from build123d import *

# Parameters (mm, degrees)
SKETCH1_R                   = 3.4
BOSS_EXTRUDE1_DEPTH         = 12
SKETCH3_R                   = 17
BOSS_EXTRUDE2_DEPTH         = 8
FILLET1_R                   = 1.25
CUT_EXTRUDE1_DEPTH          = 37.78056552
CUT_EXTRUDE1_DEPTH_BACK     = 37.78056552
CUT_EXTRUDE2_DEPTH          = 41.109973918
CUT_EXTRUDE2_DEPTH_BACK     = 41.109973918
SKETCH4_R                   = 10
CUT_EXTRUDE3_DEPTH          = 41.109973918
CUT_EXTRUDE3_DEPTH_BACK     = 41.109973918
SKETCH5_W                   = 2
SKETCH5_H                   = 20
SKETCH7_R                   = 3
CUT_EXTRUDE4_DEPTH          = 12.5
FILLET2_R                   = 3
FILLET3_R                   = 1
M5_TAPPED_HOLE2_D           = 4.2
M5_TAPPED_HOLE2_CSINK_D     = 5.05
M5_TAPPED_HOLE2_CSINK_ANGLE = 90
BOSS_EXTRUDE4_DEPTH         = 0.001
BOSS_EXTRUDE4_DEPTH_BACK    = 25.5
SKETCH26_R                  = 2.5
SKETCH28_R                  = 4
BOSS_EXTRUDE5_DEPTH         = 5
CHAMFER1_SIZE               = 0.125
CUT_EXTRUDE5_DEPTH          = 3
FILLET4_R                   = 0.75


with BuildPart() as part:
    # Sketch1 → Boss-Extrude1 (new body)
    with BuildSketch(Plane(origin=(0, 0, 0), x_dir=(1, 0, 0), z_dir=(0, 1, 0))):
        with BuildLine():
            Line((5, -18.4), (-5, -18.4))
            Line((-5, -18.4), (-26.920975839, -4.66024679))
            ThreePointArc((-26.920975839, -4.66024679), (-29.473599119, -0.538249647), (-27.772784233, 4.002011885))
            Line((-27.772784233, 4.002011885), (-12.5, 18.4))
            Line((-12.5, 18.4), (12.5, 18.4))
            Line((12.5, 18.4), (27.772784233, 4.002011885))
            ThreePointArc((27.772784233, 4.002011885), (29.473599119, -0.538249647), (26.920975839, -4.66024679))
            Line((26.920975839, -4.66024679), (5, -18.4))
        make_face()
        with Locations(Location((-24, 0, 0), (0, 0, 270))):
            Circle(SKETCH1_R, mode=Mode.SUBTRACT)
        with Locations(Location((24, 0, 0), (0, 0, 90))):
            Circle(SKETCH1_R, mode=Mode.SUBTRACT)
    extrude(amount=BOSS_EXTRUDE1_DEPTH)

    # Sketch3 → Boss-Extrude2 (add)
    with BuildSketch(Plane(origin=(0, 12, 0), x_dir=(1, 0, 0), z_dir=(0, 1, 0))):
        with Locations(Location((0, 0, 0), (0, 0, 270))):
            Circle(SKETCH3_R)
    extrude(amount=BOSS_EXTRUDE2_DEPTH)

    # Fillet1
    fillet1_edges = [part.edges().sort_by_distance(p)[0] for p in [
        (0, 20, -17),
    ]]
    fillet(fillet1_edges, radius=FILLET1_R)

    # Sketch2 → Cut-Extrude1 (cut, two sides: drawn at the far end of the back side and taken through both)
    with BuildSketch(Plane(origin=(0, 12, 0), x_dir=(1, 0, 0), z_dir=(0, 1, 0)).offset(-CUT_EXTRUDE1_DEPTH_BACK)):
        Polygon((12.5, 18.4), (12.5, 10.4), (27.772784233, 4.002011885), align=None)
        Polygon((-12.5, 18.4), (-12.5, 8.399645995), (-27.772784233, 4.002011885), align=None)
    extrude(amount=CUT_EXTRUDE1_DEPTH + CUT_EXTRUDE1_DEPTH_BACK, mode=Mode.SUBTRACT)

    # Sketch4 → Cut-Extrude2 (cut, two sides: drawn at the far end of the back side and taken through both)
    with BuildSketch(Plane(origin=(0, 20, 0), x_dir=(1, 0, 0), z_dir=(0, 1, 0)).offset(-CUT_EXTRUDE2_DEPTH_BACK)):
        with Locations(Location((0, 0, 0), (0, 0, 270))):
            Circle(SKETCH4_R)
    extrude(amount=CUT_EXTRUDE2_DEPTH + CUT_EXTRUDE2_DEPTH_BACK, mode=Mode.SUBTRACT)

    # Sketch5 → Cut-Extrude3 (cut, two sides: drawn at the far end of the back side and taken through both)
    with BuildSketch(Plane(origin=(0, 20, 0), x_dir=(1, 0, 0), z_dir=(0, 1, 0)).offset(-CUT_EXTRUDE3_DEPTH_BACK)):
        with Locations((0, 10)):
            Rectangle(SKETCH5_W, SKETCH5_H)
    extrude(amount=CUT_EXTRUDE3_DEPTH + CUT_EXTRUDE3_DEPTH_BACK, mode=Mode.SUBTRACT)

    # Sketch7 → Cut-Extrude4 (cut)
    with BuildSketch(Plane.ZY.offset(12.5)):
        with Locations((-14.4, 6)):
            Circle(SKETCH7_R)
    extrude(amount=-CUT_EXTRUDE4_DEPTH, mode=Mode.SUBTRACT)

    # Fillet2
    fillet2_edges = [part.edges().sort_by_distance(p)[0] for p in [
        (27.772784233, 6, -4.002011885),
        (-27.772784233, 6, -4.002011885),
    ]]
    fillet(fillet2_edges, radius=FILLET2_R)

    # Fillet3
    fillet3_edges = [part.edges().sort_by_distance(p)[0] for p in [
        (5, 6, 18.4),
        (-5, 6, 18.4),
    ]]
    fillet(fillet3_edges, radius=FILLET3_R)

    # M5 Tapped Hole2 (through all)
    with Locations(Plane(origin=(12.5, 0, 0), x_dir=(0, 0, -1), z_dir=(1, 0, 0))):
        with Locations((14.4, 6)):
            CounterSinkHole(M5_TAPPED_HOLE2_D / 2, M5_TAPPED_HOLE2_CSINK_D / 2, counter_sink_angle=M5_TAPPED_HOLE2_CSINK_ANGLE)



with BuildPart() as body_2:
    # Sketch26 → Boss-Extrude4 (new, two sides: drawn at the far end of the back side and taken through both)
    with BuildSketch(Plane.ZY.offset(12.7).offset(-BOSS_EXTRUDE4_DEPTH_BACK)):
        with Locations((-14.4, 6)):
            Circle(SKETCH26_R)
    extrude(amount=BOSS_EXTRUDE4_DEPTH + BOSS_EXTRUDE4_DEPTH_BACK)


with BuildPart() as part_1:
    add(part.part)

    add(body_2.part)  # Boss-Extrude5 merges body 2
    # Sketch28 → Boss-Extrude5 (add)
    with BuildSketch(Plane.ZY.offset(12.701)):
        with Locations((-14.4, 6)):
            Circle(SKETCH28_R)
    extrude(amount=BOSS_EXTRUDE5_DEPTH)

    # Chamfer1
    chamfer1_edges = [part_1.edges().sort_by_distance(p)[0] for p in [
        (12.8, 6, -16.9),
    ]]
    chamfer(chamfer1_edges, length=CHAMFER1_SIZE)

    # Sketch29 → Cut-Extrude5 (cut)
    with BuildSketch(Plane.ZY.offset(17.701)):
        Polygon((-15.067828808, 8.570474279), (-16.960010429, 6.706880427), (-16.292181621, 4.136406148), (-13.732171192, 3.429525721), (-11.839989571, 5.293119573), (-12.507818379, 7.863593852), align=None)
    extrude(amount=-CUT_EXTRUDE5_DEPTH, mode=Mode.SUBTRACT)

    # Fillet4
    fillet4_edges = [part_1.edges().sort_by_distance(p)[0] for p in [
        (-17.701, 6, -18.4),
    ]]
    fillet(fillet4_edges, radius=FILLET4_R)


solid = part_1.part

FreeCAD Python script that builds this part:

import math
import FreeCAD as App
import Part
import Sketcher
Q = App.Units.Quantity


def edges_at(feature, points):
    """Names of the edges that pass closest to the given points."""
    edges = feature.Shape.Edges
    near = lambda p: min(range(len(edges)), key=lambda i: edges[i].distToShape(Part.Vertex(*p))[0])
    return sorted({f"Edge{near(p) + 1}" for p in points})


def add_polygon(sketch, points):
    """Adds a closed chain of lines whose ends are joined by coincident constraints."""
    first, n = sketch.GeometryCount, len(points)
    for a, b in zip(points, points[1:] + points[:1]):
        sketch.addGeometry(Part.LineSegment(App.Vector(*a, 0), App.Vector(*b, 0)), False)
    for i in range(n):
        sketch.addConstraint(Sketcher.Constraint("Coincident", first + i, 2, first + (i + 1) % n, 1))

doc = App.newDocument("Part")
body = doc.addObject("PartDesign::Body", "Body")

sketch1 = body.newObject("Sketcher::SketchObject", "Sketch")
sketch1.AttachmentSupport = (doc.getObject("XZ_Plane"), [""])
sketch1.MapMode = "FlatFace"
sketch1.addGeometry([
    Part.LineSegment(App.Vector(-5, 18.4, 0), App.Vector(5, 18.4, 0)),
    Part.LineSegment(App.Vector(5, 18.4, 0), App.Vector(26.920976, 4.660247, 0)),
    Part.ArcOfCircle(Part.Circle(App.Vector(24, 0, 0), App.Vector(0, 0, 1), 5.5), math.radians(-46.688787), math.radians(57.921104)),
    Part.LineSegment(App.Vector(27.772784, -4.002012, 0), App.Vector(12.5, -18.4, 0)),
    Part.LineSegment(App.Vector(12.5, -18.4, 0), App.Vector(-12.5, -18.4, 0)),
    Part.LineSegment(App.Vector(-12.5, -18.4, 0), App.Vector(-27.772784, -4.002012, 0)),
    Part.ArcOfCircle(Part.Circle(App.Vector(-24, 0, 0), App.Vector(0, 0, 1), 5.5), math.radians(122.078896), math.radians(226.688787)),
    Part.LineSegment(App.Vector(-26.920976, 4.660247, 0), App.Vector(-5, 18.4, 0)),
    Part.Circle(App.Vector(24, 0, 0), App.Vector(0, 0, 1), 3.4),
    Part.Circle(App.Vector(-24, 0, 0), App.Vector(0, 0, 1), 3.4),
], False)
sketch1.addConstraint([
    Sketcher.Constraint("Coincident", 0, 2, 1, 1),
    Sketcher.Constraint("Tangent", 1, 2, 2, 2),
    Sketcher.Constraint("Tangent", 2, 1, 3, 1),
    Sketcher.Constraint("Coincident", 3, 2, 4, 1),
    Sketcher.Constraint("Coincident", 4, 2, 5, 1),
    Sketcher.Constraint("Tangent", 5, 2, 6, 2),
    Sketcher.Constraint("Tangent", 6, 1, 7, 1),
    Sketcher.Constraint("Coincident", 7, 2, 0, 1),
    Sketcher.Constraint("Horizontal", 0),
    Sketcher.Constraint("Horizontal", 4),
    Sketcher.Constraint("Coincident", 8, 3, 2, 3),
    Sketcher.Constraint("Coincident", 9, 3, 6, 3),
    Sketcher.Constraint("Equal", 2, 6),
    Sketcher.Constraint("Equal", 8, 9),
    Sketcher.Constraint("Symmetric", 2, 3, 6, 3, -1, 1),
    Sketcher.Constraint("Symmetric", 2, 1, 5, 2, -2),
    Sketcher.Constraint("Horizontal", 1, 2, 6, 1),
    Sketcher.Constraint("Diameter", 8, Q("6.8 mm")),
    Sketcher.Constraint("Radius", 2, Q("5.5 mm")),
    Sketcher.Constraint("DistanceX", 0, 1, 0, 2, Q("10 mm")),
    Sketcher.Constraint("DistanceX", 4, 2, 4, 1, Q("25 mm")),
    Sketcher.Constraint("DistanceX", -1, 1, 2, 3, Q("24 mm")),
    Sketcher.Constraint("DistanceY", -1, 1, 0, 2, Q("18.4 mm")),
    Sketcher.Constraint("DistanceY", 3, 2, -1, 1, Q("18.4 mm")),
])
pad1 = body.newObject("PartDesign::Pad", "Pad")
pad1.Profile = sketch1
pad1.Length = 12
pad1.Reversed = True

sketch2 = body.newObject("Sketcher::SketchObject", "Sketch001")
sketch2.AttachmentSupport = (doc.getObject("XZ_Plane"), [""])
sketch2.MapMode = "FlatFace"
sketch2.AttachmentOffset = App.Placement(App.Vector(0, 0, -12), App.Rotation())
sketch2.addGeometry(Part.Circle(App.Vector(0, 0, 0), App.Vector(0, 0, 1), 17), False)
sketch2.addConstraint([
    Sketcher.Constraint("Coincident", 0, 3, -1, 1),
    Sketcher.Constraint("Diameter", 0, Q("34 mm")),
])
pad2 = body.newObject("PartDesign::Pad", "Pad001")
pad2.Profile = sketch2
pad2.Length = 8
pad2.Reversed = True
doc.recompute()

fillet = body.newObject("PartDesign::Fillet", "Fillet")
fillet.Base = (pad2, edges_at(pad2, [(0, 20, -17)]))
fillet.Radius = 1.25

sketch3 = body.newObject("Sketcher::SketchObject", "Sketch002")
sketch3.AttachmentSupport = (doc.getObject("XZ_Plane"), [""])
sketch3.MapMode = "FlatFace"
sketch3.AttachmentOffset = App.Placement(App.Vector(0, 0, -12), App.Rotation())
add_polygon(sketch3, [(12.5, -18.4), (12.5, -10.4), (27.772784, -4.002012)])
add_polygon(sketch3, [(-12.5, -8.399646), (-12.5, -18.4), (-27.772784, -4.002012)])
sketch3.addConstraint([
    Sketcher.Constraint("Vertical", 0),
    Sketcher.Constraint("Vertical", 3),
    Sketcher.Constraint("Symmetric", 2, 2, 3, 2, -2),
    Sketcher.Constraint("Symmetric", 1, 2, 4, 2, -2),
    Sketcher.Constraint("DistanceY", 0, 1, 0, 2, Q("8 mm")),
    Sketcher.Constraint("DistanceX", 3, 2, 2, 2, Q("25 mm")),
    Sketcher.Constraint("DistanceY", 0, 2, -1, 1, Q("10.4 mm")),
    Sketcher.Constraint("Distance", 1, Q("16.55875 mm")),
    Sketcher.Constraint("Distance", 2, Q("20.989521 mm")),
    Sketcher.Constraint("DistanceY", 3, 2, 3, 1, Q("10.000354 mm")),
])
pocket1 = body.newObject("PartDesign::Pocket", "Pocket")
pocket1.Profile = sketch3
pocket1.Type = "ThroughAll"
pocket1.Midplane = True

sketch4 = body.newObject("Sketcher::SketchObject", "Sketch003")
sketch4.AttachmentSupport = (doc.getObject("XZ_Plane"), [""])
sketch4.MapMode = "FlatFace"
sketch4.AttachmentOffset = App.Placement(App.Vector(0, 0, -20), App.Rotation())
sketch4.addGeometry(Part.Circle(App.Vector(0, 0, 0), App.Vector(0, 0, 1), 10), False)
sketch4.addConstraint([
    Sketcher.Constraint("Coincident", 0, 3, -1, 1),
    Sketcher.Constraint("Diameter", 0, Q("20 mm")),
])
pocket2 = body.newObject("PartDesign::Pocket", "Pocket001")
pocket2.Profile = sketch4
pocket2.Type = "ThroughAll"
pocket2.Midplane = True

sketch5 = body.newObject("Sketcher::SketchObject", "Sketch004")
sketch5.AttachmentSupport = (doc.getObject("XZ_Plane"), [""])
sketch5.MapMode = "FlatFace"
sketch5.AttachmentOffset = App.Placement(App.Vector(0, 0, -20), App.Rotation())
add_polygon(sketch5, [(-1, -20), (-1, 0), (1, 0), (1, -20)])
sketch5.addConstraint([
    Sketcher.Constraint("Vertical", 0),
    Sketcher.Constraint("Horizontal", 1),
    Sketcher.Constraint("Vertical", 2),
    Sketcher.Constraint("Horizontal", 3),
    Sketcher.Constraint("Symmetric", 0, 2, 1, 2, -1, 1),
    Sketcher.Constraint("DistanceX", 1, 1, 1, 2, Q("2 mm")),
    Sketcher.Constraint("DistanceY", 0, 1, 0, 2, Q("20 mm")),
])
pocket3 = body.newObject("PartDesign::Pocket", "Pocket002")
pocket3.Profile = sketch5
pocket3.Type = "ThroughAll"
pocket3.Midplane = True

sketch6 = body.newObject("Sketcher::SketchObject", "Sketch005")
sketch6.AttachmentSupport = (doc.getObject("YZ_Plane"), [""])
sketch6.MapMode = "FlatFace"
sketch6.AttachmentOffset = App.Placement(App.Vector(0, 0, -12.5), App.Rotation())
sketch6.addGeometry(Part.Circle(App.Vector(6, -14.4, 0), App.Vector(0, 0, 1), 3), False)
sketch6.addConstraint([
    Sketcher.Constraint("Diameter", 0, Q("6 mm")),
    Sketcher.Constraint("DistanceX", -1, 1, 0, 3, Q("6 mm")),
    Sketcher.Constraint("DistanceY", 0, 3, -1, 1, Q("14.4 mm")),
])
pocket4 = body.newObject("PartDesign::Pocket", "Pocket003")
pocket4.Profile = sketch6
pocket4.Length = 12.5
pocket4.Reversed = True
doc.recompute()

fillet2 = body.newObject("PartDesign::Fillet", "Fillet001")
fillet2.Base = (pocket4, edges_at(pocket4, [(27.773, 6, -4.002), (-27.773, 6, -4.002)]))
fillet2.Radius = 3
doc.recompute()

fillet3 = body.newObject("PartDesign::Fillet", "Fillet002")
fillet3.Base = (fillet2, edges_at(fillet2, [(5, 6, 18.4), (-5, 6, 18.4)]))
fillet3.Radius = 1

sketch7 = body.newObject("Sketcher::SketchObject", "Sketch006")
sketch7.AttachmentSupport = (doc.getObject("YZ_Plane"), [""])
sketch7.MapMode = "FlatFace"
sketch7.AttachmentOffset = App.Placement(App.Vector(0, 0, 12.5), App.Rotation())
sketch7.addGeometry(Part.Circle(App.Vector(6, -14.4, 0), App.Vector(0, 0, 1), 2.1), False)
sketch7.addConstraint([
    Sketcher.Constraint("Diameter", 0, Q("4.2 mm")),
    Sketcher.Constraint("DistanceX", -1, 1, 0, 3, Q("6 mm")),
    Sketcher.Constraint("DistanceY", 0, 3, -1, 1, Q("14.4 mm")),
])
doc.recompute()
hole = body.newObject("PartDesign::Hole", "Hole")
hole.Profile = sketch7
hole.ThreadType = "None"
hole.Diameter = 4.2
hole.DepthType = "ThroughAll"
hole.HoleCutType = "Countersink"
hole.HoleCutDiameter = 5.05
hole.HoleCutCountersinkAngle = 90
body2 = doc.addObject("PartDesign::Body", "Body001")

sketch8 = body2.newObject("Sketcher::SketchObject", "Sketch007")
sketch8.AttachmentSupport = (doc.getObject("YZ_Plane001"), [""])
sketch8.MapMode = "FlatFace"
sketch8.AttachmentOffset = App.Placement(App.Vector(0, 0, -12.7), App.Rotation())
sketch8.addGeometry(Part.Circle(App.Vector(6, -14.4, 0), App.Vector(0, 0, 1), 2.5), False)
sketch8.addConstraint([
    Sketcher.Constraint("Diameter", 0, Q("5 mm")),
    Sketcher.Constraint("DistanceX", -1, 1, 0, 3, Q("6 mm")),
    Sketcher.Constraint("DistanceY", 0, 3, -1, 1, Q("14.4 mm")),
])
pad3 = body2.newObject("PartDesign::Pad", "Pad002")
pad3.Profile = sketch8
pad3.Type = "TwoLengths"
pad3.Length = 0.001
pad3.Length2 = 25.5
pad3.Reversed = True
doc.recompute()

boolean = body.newObject("PartDesign::Boolean", "Boolean")
boolean.Type = "Fuse"
boolean.addObjects([body2])

sketch9 = body.newObject("Sketcher::SketchObject", "Sketch008")
sketch9.AttachmentSupport = (doc.getObject("YZ_Plane"), [""])
sketch9.MapMode = "FlatFace"
sketch9.AttachmentOffset = App.Placement(App.Vector(0, 0, -12.701), App.Rotation())
sketch9.addGeometry(Part.Circle(App.Vector(6, -14.4, 0), App.Vector(0, 0, 1), 4), False)
sketch9.addConstraint([
    Sketcher.Constraint("Diameter", 0, Q("8 mm")),
    Sketcher.Constraint("DistanceX", -1, 1, 0, 3, Q("6 mm")),
    Sketcher.Constraint("DistanceY", 0, 3, -1, 1, Q("14.4 mm")),
])
pad4 = body.newObject("PartDesign::Pad", "Pad003")
pad4.Profile = sketch9
pad4.Length = 5
pad4.Reversed = True
doc.recompute()

chamfer = body.newObject("PartDesign::Chamfer", "Chamfer")
chamfer.Base = (pad4, edges_at(pad4, [(12.8, 6, -16.9)]))
chamfer.Size = 0.125

sketch10 = body.newObject("Sketcher::SketchObject", "Sketch009")
sketch10.AttachmentSupport = (doc.getObject("YZ_Plane"), [""])
sketch10.MapMode = "FlatFace"
sketch10.AttachmentOffset = App.Placement(App.Vector(0, 0, -17.701), App.Rotation())
add_polygon(sketch10, [(8.570474, -15.067829), (6.70688, -16.96001), (4.136406, -16.292182), (3.429526, -13.732171), (5.29312, -11.83999), (7.863594, -12.507818)])
sketch10.addConstraint([
    Sketcher.Constraint("Parallel", 0, 3),
    Sketcher.Constraint("Parallel", 1, 4),
    Sketcher.Constraint("Parallel", 2, 5),
    Sketcher.Constraint("Equal", 0, 1),
    Sketcher.Constraint("Equal", 1, 2),
    Sketcher.Constraint("Equal", 2, 3),
    Sketcher.Constraint("Distance", 0, Q("2.655811 mm")),
    Sketcher.Constraint("DistanceX", -1, 1, 0, 2, Q("6.70688 mm")),
    Sketcher.Constraint("DistanceY", 0, 2, -1, 1, Q("16.96001 mm")),
    Sketcher.Constraint("DistanceY", 1, 2, -1, 1, Q("16.292182 mm")),
    Sketcher.Constraint("DistanceY", 2, 2, -1, 1, Q("13.732171 mm")),
    Sketcher.Constraint("DistanceX", -1, 1, 3, 2, Q("5.29312 mm")),
])
pocket5 = body.newObject("PartDesign::Pocket", "Pocket004")
pocket5.Profile = sketch10
pocket5.Length = 3
pocket5.Reversed = True
doc.recompute()

fillet4 = body.newObject("PartDesign::Fillet", "Fillet003")
fillet4.Base = (pocket5, edges_at(pocket5, [(-17.701, 6, -18.4)]))
fillet4.Radius = 0.75

doc.recompute()
